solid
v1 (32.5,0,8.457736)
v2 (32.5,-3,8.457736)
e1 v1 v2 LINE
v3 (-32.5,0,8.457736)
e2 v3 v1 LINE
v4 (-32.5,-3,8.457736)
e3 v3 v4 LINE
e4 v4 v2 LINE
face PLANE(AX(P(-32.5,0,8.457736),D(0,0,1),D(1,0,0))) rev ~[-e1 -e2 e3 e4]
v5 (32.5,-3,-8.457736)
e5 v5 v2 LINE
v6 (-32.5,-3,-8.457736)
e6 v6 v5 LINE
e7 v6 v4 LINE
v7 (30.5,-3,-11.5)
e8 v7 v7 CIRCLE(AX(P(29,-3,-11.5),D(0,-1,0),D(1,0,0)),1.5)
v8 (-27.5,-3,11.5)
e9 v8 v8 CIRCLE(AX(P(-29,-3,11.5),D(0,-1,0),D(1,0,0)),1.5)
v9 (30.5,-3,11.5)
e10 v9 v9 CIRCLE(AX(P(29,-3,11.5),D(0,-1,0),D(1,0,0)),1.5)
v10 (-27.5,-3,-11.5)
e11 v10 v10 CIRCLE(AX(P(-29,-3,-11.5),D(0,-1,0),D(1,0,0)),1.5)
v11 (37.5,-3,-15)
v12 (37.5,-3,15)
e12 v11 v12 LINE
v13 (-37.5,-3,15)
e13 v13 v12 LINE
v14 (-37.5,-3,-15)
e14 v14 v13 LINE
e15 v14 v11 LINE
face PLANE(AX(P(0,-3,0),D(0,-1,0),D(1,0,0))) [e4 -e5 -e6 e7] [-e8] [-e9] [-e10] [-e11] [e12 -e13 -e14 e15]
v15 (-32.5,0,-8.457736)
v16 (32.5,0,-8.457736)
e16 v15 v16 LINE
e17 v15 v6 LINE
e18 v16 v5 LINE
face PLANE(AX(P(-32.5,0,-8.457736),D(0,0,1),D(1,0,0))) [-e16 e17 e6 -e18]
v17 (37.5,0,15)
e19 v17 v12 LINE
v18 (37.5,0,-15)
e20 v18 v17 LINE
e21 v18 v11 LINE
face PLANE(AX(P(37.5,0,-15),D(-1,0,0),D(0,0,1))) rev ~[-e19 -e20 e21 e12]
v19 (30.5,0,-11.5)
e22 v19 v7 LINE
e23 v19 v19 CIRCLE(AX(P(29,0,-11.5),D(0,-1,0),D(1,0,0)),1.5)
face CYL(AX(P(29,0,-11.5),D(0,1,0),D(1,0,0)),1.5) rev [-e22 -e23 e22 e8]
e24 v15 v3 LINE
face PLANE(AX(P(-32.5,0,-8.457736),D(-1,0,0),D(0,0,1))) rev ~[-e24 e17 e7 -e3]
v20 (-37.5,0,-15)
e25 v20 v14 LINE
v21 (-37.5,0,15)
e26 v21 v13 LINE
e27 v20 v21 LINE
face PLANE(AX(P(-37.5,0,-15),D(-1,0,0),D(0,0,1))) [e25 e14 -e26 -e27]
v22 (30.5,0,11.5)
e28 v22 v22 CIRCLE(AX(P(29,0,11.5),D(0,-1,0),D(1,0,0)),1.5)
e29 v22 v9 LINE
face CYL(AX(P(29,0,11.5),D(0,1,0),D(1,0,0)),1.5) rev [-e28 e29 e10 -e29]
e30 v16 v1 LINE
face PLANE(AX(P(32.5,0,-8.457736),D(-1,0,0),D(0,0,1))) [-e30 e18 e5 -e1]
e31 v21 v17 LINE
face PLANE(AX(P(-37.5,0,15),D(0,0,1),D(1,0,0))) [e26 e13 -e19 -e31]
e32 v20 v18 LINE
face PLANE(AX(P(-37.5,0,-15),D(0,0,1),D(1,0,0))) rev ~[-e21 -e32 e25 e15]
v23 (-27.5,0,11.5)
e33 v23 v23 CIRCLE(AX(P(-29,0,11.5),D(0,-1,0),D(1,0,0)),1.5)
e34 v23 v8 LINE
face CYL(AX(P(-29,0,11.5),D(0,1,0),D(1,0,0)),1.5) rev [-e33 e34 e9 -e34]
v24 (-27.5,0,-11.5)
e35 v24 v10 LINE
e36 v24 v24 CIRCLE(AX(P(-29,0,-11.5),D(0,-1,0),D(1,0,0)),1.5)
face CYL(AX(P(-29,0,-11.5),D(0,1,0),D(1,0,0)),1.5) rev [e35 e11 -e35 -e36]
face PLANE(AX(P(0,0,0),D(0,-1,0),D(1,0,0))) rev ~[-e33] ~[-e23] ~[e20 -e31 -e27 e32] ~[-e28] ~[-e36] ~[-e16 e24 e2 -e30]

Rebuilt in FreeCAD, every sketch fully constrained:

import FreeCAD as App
import Part
import Sketcher
from FreeCAD import Vector

doc = App.newDocument("Part")
body = doc.addObject("PartDesign::Body", "Body")

sketch1 = body.newObject("Sketcher::SketchObject", "Sketch")
sketch1.AttachmentSupport = (doc.getObject("XZ_Plane"), [""])
sketch1.MapMode = "FlatFace"
sketch1.addGeometry(Part.LineSegment(Vector(-37.5, 15, 0), Vector(-37.5, -15, 0)), False)
sketch1.addGeometry(Part.LineSegment(Vector(-37.5, -15, 0), Vector(37.5, -15, 0)), False)
sketch1.addGeometry(Part.LineSegment(Vector(37.5, -15, 0), Vector(37.5, 15, 0)), False)
sketch1.addGeometry(Part.LineSegment(Vector(37.5, 15, 0), Vector(-37.5, 15, 0)), False)
sketch1.addGeometry(Part.Circle(Vector(-29, -11.5, 0), Vector(0, 0, 1), 1.5), False)
sketch1.addGeometry(Part.Circle(Vector(29, -11.5, 0), Vector(0, 0, 1), 1.5), False)
sketch1.addGeometry(Part.Circle(Vector(-29, 11.5, 0), Vector(0, 0, 1), 1.5), False)
sketch1.addGeometry(Part.LineSegment(Vector(32.5, -8.5, 0), Vector(-32.5, -8.5, 0)), False)
sketch1.addGeometry(Part.LineSegment(Vector(-32.5, -8.5, 0), Vector(-32.5, 8.5, 0)), False)
sketch1.addGeometry(Part.LineSegment(Vector(-32.5, 8.5, 0), Vector(32.5, 8.5, 0)), False)
sketch1.addGeometry(Part.LineSegment(Vector(32.5, 8.5, 0), Vector(32.5, -8.5, 0)), False)
sketch1.addGeometry(Part.Circle(Vector(29, 11.5, 0), Vector(0, 0, 1), 1.5), False)
sketch1.addConstraint(Sketcher.Constraint("Coincident", 0, 2, 1, 1))
sketch1.addConstraint(Sketcher.Constraint("Coincident", 1, 2, 2, 1))
sketch1.addConstraint(Sketcher.Constraint("Coincident", 2, 2, 3, 1))
sketch1.addConstraint(Sketcher.Constraint("Coincident", 3, 2, 0, 1))
sketch1.addConstraint(Sketcher.Constraint("Coincident", 7, 2, 8, 1))
sketch1.addConstraint(Sketcher.Constraint("Coincident", 8, 2, 9, 1))
sketch1.addConstraint(Sketcher.Constraint("Coincident", 9, 2, 10, 1))
sketch1.addConstraint(Sketcher.Constraint("Coincident", 10, 2, 7, 1))
sketch1.addConstraint(Sketcher.Constraint("Vertical", 0))
sketch1.addConstraint(Sketcher.Constraint("Horizontal", 1))
sketch1.addConstraint(Sketcher.Constraint("Vertical", 2))
sketch1.addConstraint(Sketcher.Constraint("Horizontal", 3))
sketch1.addConstraint(Sketcher.Constraint("Horizontal", 7))
sketch1.addConstraint(Sketcher.Constraint("Vertical", 8))
sketch1.addConstraint(Sketcher.Constraint("Horizontal", 9))
sketch1.addConstraint(Sketcher.Constraint("Vertical", 10))
sketch1.addConstraint(Sketcher.Constraint("Equal", 4, 5))
sketch1.addConstraint(Sketcher.Constraint("Equal", 5, 6))
sketch1.addConstraint(Sketcher.Constraint("Equal", 6, 11))
sketch1.addConstraint(Sketcher.Constraint("Symmetric", 5, 3, 6, 3, -1, 1))
sketch1.addConstraint(Sketcher.Constraint("Symmetric", 4, 3, 11, 3, -1, 1))
sketch1.addConstraint(Sketcher.Constraint("Symmetric", 0, 2, 2, 2, -1, 1))
sketch1.addConstraint(Sketcher.Constraint("Symmetric", 7, 2, 9, 2, -1, 1))
sketch1.addConstraint(Sketcher.Constraint("Symmetric", 4, 3, 5, 3, -2))
sketch1.addConstraint(Sketcher.Constraint("Diameter", 4, 3.0))
sketch1.addConstraint(Sketcher.Constraint("DistanceX", 1, 1, 1, 2, 75.0))
sketch1.addConstraint(Sketcher.Constraint("DistanceX", 7, 2, 7, 1, 65.0))
sketch1.addConstraint(Sketcher.Constraint("DistanceY", 0, 2, 0, 1, 30.0))
sketch1.addConstraint(Sketcher.Constraint("DistanceX", 4, 3, -1, 1, 29.0))
sketch1.addConstraint(Sketcher.Constraint("DistanceY", 4, 3, 6, 3, 23.0))
sketch1.addConstraint(Sketcher.Constraint("DistanceY", 8, 1, 8, 2, 16.915472))
pad1 = body.newObject("PartDesign::Pad", "Pad")
pad1.Profile = sketch1
pad1.Length = 3

doc.recompute()
